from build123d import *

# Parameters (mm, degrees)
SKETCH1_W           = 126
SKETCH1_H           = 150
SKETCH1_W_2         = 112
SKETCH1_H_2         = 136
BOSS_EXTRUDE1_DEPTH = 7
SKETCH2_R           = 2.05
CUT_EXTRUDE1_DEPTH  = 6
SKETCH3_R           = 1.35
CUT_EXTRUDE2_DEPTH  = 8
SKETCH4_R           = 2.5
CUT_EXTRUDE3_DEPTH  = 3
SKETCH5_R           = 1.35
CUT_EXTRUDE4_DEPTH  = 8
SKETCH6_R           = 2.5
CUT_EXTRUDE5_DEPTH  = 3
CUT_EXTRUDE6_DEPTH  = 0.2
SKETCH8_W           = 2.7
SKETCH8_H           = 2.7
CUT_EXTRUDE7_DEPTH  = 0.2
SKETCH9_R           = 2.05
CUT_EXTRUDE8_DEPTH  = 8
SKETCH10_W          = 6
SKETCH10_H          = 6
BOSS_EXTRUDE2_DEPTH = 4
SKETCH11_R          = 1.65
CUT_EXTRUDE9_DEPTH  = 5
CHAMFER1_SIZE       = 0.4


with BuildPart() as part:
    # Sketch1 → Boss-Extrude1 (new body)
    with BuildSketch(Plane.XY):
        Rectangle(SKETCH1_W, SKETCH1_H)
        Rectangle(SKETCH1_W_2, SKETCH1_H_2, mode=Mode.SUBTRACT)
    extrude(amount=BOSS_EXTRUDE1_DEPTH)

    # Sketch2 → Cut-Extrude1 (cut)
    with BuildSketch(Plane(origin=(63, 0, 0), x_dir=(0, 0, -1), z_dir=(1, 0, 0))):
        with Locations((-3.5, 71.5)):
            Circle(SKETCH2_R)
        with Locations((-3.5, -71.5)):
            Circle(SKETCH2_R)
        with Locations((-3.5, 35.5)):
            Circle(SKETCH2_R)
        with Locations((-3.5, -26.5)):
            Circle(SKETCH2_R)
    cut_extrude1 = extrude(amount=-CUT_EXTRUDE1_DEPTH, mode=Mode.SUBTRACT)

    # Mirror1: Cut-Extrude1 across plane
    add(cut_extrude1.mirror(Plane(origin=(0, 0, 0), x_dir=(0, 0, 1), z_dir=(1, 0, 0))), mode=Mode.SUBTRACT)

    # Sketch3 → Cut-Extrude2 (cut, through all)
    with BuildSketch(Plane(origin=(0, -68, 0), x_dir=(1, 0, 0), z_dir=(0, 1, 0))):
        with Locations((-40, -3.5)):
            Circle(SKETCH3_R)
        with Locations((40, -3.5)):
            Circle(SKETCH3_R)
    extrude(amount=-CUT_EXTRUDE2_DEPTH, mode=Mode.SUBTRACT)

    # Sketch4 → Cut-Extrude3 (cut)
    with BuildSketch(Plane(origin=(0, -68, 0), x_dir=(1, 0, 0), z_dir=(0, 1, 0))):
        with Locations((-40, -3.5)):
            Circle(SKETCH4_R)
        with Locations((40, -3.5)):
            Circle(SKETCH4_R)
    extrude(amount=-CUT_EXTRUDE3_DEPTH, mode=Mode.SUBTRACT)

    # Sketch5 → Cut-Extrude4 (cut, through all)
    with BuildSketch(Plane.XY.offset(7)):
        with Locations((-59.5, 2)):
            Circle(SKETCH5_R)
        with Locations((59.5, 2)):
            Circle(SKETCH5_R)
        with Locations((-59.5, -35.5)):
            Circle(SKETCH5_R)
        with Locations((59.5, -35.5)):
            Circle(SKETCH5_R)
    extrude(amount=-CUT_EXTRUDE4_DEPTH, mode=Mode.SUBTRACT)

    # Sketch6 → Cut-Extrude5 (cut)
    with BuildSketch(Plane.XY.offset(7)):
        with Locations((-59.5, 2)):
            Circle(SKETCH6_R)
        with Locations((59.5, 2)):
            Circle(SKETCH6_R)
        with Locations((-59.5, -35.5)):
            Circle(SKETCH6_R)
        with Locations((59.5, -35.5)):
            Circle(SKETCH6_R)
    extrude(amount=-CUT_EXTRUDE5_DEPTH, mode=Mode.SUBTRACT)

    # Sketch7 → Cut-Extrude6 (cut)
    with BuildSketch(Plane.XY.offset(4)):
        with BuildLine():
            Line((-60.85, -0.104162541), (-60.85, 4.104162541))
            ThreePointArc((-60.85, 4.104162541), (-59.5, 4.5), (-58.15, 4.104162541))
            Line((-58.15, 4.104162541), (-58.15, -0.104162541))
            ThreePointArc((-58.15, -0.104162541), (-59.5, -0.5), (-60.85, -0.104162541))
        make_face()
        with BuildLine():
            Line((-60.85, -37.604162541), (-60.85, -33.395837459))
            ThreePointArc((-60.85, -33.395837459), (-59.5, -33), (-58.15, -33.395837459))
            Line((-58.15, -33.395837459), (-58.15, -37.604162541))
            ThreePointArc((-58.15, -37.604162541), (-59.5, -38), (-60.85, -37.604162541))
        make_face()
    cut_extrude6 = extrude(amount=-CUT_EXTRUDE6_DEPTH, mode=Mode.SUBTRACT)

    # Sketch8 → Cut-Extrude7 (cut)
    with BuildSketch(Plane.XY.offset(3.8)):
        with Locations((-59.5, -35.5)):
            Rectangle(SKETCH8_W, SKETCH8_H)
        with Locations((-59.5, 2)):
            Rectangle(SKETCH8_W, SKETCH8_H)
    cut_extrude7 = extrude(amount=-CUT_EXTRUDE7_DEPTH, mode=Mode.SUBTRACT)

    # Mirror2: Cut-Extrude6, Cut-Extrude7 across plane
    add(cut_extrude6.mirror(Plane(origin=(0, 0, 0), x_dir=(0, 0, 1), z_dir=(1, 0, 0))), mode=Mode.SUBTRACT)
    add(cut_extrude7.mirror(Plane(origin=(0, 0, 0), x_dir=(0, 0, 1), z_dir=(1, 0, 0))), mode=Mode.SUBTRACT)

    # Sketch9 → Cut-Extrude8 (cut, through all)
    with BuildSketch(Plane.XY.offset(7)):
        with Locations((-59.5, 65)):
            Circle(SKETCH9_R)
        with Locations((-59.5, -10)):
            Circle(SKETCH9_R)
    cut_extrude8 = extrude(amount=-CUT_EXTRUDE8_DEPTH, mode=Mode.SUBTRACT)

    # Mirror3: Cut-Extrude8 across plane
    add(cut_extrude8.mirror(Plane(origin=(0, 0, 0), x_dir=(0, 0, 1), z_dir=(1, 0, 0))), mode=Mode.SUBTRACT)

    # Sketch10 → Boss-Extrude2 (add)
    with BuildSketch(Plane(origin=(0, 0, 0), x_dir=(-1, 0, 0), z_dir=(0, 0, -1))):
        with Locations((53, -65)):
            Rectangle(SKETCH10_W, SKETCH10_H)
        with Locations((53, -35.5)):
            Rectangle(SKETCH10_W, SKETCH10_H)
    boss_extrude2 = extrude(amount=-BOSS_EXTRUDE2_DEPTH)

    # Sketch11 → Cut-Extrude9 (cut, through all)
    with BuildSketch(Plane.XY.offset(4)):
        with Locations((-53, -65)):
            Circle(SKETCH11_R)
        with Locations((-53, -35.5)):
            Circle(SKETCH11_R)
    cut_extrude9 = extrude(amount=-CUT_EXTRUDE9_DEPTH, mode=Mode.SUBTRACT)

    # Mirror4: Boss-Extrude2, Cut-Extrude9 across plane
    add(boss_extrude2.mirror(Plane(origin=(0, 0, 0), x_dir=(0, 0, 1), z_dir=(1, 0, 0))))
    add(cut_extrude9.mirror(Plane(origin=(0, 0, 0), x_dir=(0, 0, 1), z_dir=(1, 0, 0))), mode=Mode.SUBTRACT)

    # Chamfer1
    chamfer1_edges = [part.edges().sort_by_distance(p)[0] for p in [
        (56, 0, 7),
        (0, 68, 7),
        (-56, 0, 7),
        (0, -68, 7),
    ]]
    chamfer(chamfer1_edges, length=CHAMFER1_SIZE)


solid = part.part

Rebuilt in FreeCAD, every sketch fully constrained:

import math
import FreeCAD as App
import Part
import Sketcher
from FreeCAD import Vector


def edges_at(feature, points):
    """Names of the edges that pass closest to the given points."""
    edges = feature.Shape.Edges
    near = lambda p: min(range(len(edges)), key=lambda i: edges[i].distToShape(Part.Vertex(*p))[0])
    return sorted({f"Edge{near(p) + 1}" for p in points})


def add_polygon(sketch, points):
    """Adds a closed chain of lines whose ends are joined by coincident constraints."""
    first, n = sketch.GeometryCount, len(points)
    for a, b in zip(points, points[1:] + points[:1]):
        sketch.addGeometry(Part.LineSegment(App.Vector(*a, 0), App.Vector(*b, 0)), False)
    for i in range(n):
        sketch.addConstraint(Sketcher.Constraint("Coincident", first + i, 2, first + (i + 1) % n, 1))

doc = App.newDocument("Part")
body = doc.addObject("PartDesign::Body", "Body")

# Sketch on XY plane
sketch1 = body.newObject("Sketcher::SketchObject", "Sketch")
sketch1.AttachmentSupport = (doc.getObject("XY_Plane"), [""])
sketch1.MapMode = "FlatFace"
add_polygon(sketch1, [(-63, 75), (-63, -75), (63, -75), (63, 75)])  # lines 0-3
add_polygon(sketch1, [(56, -68), (-56, -68), (-56, 68), (56, 68)])  # lines 4-7
sketch1.addConstraint(Sketcher.Constraint("Vertical", 0))
sketch1.addConstraint(Sketcher.Constraint("Horizontal", 1))
sketch1.addConstraint(Sketcher.Constraint("Vertical", 2))
sketch1.addConstraint(Sketcher.Constraint("Horizontal", 3))
sketch1.addConstraint(Sketcher.Constraint("Horizontal", 4))
sketch1.addConstraint(Sketcher.Constraint("Vertical", 5))
sketch1.addConstraint(Sketcher.Constraint("Horizontal", 6))
sketch1.addConstraint(Sketcher.Constraint("Vertical", 7))
sketch1.addConstraint(Sketcher.Constraint("Symmetric", 0, 2, 2, 2, -1, 1))
sketch1.addConstraint(Sketcher.Constraint("Symmetric", 4, 2, 6, 2, -1, 1))
sketch1.addConstraint(Sketcher.Constraint("DistanceX", 1, 1, 1, 2, 126.0))
sketch1.addConstraint(Sketcher.Constraint("DistanceX", 4, 2, 4, 1, 112.0))
sketch1.addConstraint(Sketcher.Constraint("DistanceY", 0, 2, 0, 1, 150.0))
sketch1.addConstraint(Sketcher.Constraint("DistanceY", 5, 1, 5, 2, 136.0))
pad1 = body.newObject("PartDesign::Pad", "Pad")
pad1.Profile = sketch1
pad1.Length = 7

# Sketch on YZ plane
sketch2 = body.newObject("Sketcher::SketchObject", "Sketch001")
sketch2.AttachmentSupport = (doc.getObject("YZ_Plane"), [""])
sketch2.MapMode = "FlatFace"
sketch2.AttachmentOffset = App.Placement(Vector(0, 0, 63), App.Rotation())
sketch2.addGeometry(Part.Circle(Vector(71.5, 3.5, 0), Vector(0, 0, 1), 2.05), False)
sketch2.addGeometry(Part.Circle(Vector(-71.5, 3.5, 0), Vector(0, 0, 1), 2.05), False)
sketch2.addGeometry(Part.Circle(Vector(35.5, 3.5, 0), Vector(0, 0, 1), 2.05), False)
sketch2.addGeometry(Part.Circle(Vector(-26.5, 3.5, 0), Vector(0, 0, 1), 2.05), False)
sketch2.addConstraint(Sketcher.Constraint("Equal", 0, 1))
sketch2.addConstraint(Sketcher.Constraint("Equal", 1, 2))
sketch2.addConstraint(Sketcher.Constraint("Equal", 2, 3))
sketch2.addConstraint(Sketcher.Constraint("Symmetric", 0, 3, 1, 3, -2))
sketch2.addConstraint(Sketcher.Constraint("Horizontal", 1, 3, 2, 3))
sketch2.addConstraint(Sketcher.Constraint("Horizontal", 2, 3, 3, 3))
sketch2.addConstraint(Sketcher.Constraint("Diameter", 0, 4.1))
sketch2.addConstraint(Sketcher.Constraint("DistanceX", 1, 3, 0, 3, 143.0))
sketch2.addConstraint(Sketcher.Constraint("DistanceX", 2, 3, 0, 3, 36.0))
sketch2.addConstraint(Sketcher.Constraint("DistanceX", 1, 3, 3, 3, 45.0))
sketch2.addConstraint(Sketcher.Constraint("DistanceY", -1, 1, 0, 3, 3.5))
pocket1 = body.newObject("PartDesign::Pocket", "Pocket")
pocket1.Profile = sketch2
pocket1.Length = 6
doc.recompute()

mirrored = body.newObject("PartDesign::Mirrored", "Mirrored")
mirrored.Originals = [pocket1]
mirrored.MirrorPlane = (doc.getObject("YZ_Plane"), [""])
body.Tip = mirrored

# Sketch on XZ plane
sketch3 = body.newObject("Sketcher::SketchObject", "Sketch002")
sketch3.AttachmentSupport = (doc.getObject("XZ_Plane"), [""])
sketch3.MapMode = "FlatFace"
sketch3.AttachmentOffset = App.Placement(Vector(0, 0, 68), App.Rotation())
sketch3.addGeometry(Part.Circle(Vector(-40, 3.5, 0), Vector(0, 0, 1), 1.35), False)
sketch3.addGeometry(Part.Circle(Vector(40, 3.5, 0), Vector(0, 0, 1), 1.35), False)
sketch3.addConstraint(Sketcher.Constraint("Equal", 0, 1))
sketch3.addConstraint(Sketcher.Constraint("Symmetric", 0, 3, 1, 3, -2))
sketch3.addConstraint(Sketcher.Constraint("Diameter", 0, 2.7))
sketch3.addConstraint(Sketcher.Constraint("DistanceX", 0, 3, -1, 1, 40.0))
sketch3.addConstraint(Sketcher.Constraint("DistanceY", -1, 1, 0, 3, 3.5))
pocket2 = body.newObject("PartDesign::Pocket", "Pocket001")
pocket2.Profile = sketch3
pocket2.Type = "ThroughAll"
pocket2.Reversed = True

# Sketch on XZ plane
sketch4 = body.newObject("Sketcher::SketchObject", "Sketch003")
sketch4.AttachmentSupport = (doc.getObject("XZ_Plane"), [""])
sketch4.MapMode = "FlatFace"
sketch4.AttachmentOffset = App.Placement(Vector(0, 0, 68), App.Rotation())
sketch4.addGeometry(Part.Circle(Vector(-40, 3.5, 0), Vector(0, 0, 1), 2.5), False)
sketch4.addGeometry(Part.Circle(Vector(40, 3.5, 0), Vector(0, 0, 1), 2.5), False)
sketch4.addConstraint(Sketcher.Constraint("Equal", 0, 1))
sketch4.addConstraint(Sketcher.Constraint("Symmetric", 0, 3, 1, 3, -2))
sketch4.addConstraint(Sketcher.Constraint("Diameter", 0, 5.0))
sketch4.addConstraint(Sketcher.Constraint("DistanceX", 0, 3, -1, 1, 40.0))
sketch4.addConstraint(Sketcher.Constraint("DistanceY", -1, 1, 0, 3, 3.5))
pocket3 = body.newObject("PartDesign::Pocket", "Pocket002")
pocket3.Profile = sketch4
pocket3.Length = 3
pocket3.Reversed = True

# Sketch on XY plane
sketch5 = body.newObject("Sketcher::SketchObject", "Sketch004")
sketch5.AttachmentSupport = (doc.getObject("XY_Plane"), [""])
sketch5.MapMode = "FlatFace"
sketch5.AttachmentOffset = App.Placement(Vector(0, 0, 7), App.Rotation())
sketch5.addGeometry(Part.Circle(Vector(-59.5, 2, 0), Vector(0, 0, 1), 1.35), False)
sketch5.addGeometry(Part.Circle(Vector(59.5, 2, 0), Vector(0, 0, 1), 1.35), False)
sketch5.addGeometry(Part.Circle(Vector(-59.5, -35.5, 0), Vector(0, 0, 1), 1.35), False)
sketch5.addGeometry(Part.Circle(Vector(59.5, -35.5, 0), Vector(0, 0, 1), 1.35), False)
sketch5.addConstraint(Sketcher.Constraint("Equal", 0, 1))
sketch5.addConstraint(Sketcher.Constraint("Equal", 1, 2))
sketch5.addConstraint(Sketcher.Constraint("Equal", 2, 3))
sketch5.addConstraint(Sketcher.Constraint("Symmetric", 0, 3, 1, 3, -2))
sketch5.addConstraint(Sketcher.Constraint("Symmetric", 2, 3, 3, 3, -2))
sketch5.addConstraint(Sketcher.Constraint("Vertical", 0, 3, 2, 3))
sketch5.addConstraint(Sketcher.Constraint("Diameter", 0, 2.7))
sketch5.addConstraint(Sketcher.Constraint("DistanceY", -1, 1, 0, 3, 2.0))
sketch5.addConstraint(Sketcher.Constraint("DistanceX", 0, 3, 1, 3, 119.0))
sketch5.addConstraint(Sketcher.Constraint("DistanceY", 2, 3, -1, 1, 35.5))
pocket4 = body.newObject("PartDesign::Pocket", "Pocket003")
pocket4.Profile = sketch5
pocket4.Type = "ThroughAll"

# Sketch on XY plane
sketch6 = body.newObject("Sketcher::SketchObject", "Sketch005")
sketch6.AttachmentSupport = (doc.getObject("XY_Plane"), [""])
sketch6.MapMode = "FlatFace"
sketch6.AttachmentOffset = App.Placement(Vector(0, 0, 7), App.Rotation())
sketch6.addGeometry(Part.Circle(Vector(-59.5, 2, 0), Vector(0, 0, 1), 2.5), False)
sketch6.addGeometry(Part.Circle(Vector(59.5, 2, 0), Vector(0, 0, 1), 2.5), False)
sketch6.addGeometry(Part.Circle(Vector(-59.5, -35.5, 0), Vector(0, 0, 1), 2.5), False)
sketch6.addGeometry(Part.Circle(Vector(59.5, -35.5, 0), Vector(0, 0, 1), 2.5), False)
sketch6.addConstraint(Sketcher.Constraint("Equal", 0, 1))
sketch6.addConstraint(Sketcher.Constraint("Equal", 1, 2))
sketch6.addConstraint(Sketcher.Constraint("Equal", 2, 3))
sketch6.addConstraint(Sketcher.Constraint("Symmetric", 0, 3, 1, 3, -2))
sketch6.addConstraint(Sketcher.Constraint("Symmetric", 2, 3, 3, 3, -2))
sketch6.addConstraint(Sketcher.Constraint("Vertical", 0, 3, 2, 3))
sketch6.addConstraint(Sketcher.Constraint("Diameter", 0, 5.0))
sketch6.addConstraint(Sketcher.Constraint("DistanceY", -1, 1, 0, 3, 2.0))
sketch6.addConstraint(Sketcher.Constraint("DistanceX", 0, 3, 1, 3, 119.0))
sketch6.addConstraint(Sketcher.Constraint("DistanceY", 2, 3, -1, 1, 35.5))
pocket5 = body.newObject("PartDesign::Pocket", "Pocket004")
pocket5.Profile = sketch6
pocket5.Length = 3

# Sketch on XY plane
sketch7 = body.newObject("Sketcher::SketchObject", "Sketch006")
sketch7.AttachmentSupport = (doc.getObject("XY_Plane"), [""])
sketch7.MapMode = "FlatFace"
sketch7.AttachmentOffset = App.Placement(Vector(0, 0, 4), App.Rotation())
sketch7.addGeometry(Part.LineSegment(Vector(-60.85, 4.104163, 0), Vector(-60.85, -0.104163, 0)), False)
sketch7.addGeometry(Part.ArcOfCircle(Part.Circle(Vector(-59.5, 2, 0), Vector(0, 0, 1), 2.5), math.radians(-122.683639), math.radians(-57.316361)), False)
sketch7.addGeometry(Part.LineSegment(Vector(-58.15, -0.104163, 0), Vector(-58.15, 4.104163, 0)), False)
sketch7.addGeometry(Part.ArcOfCircle(Part.Circle(Vector(-59.5, 2, 0), Vector(0, 0, 1), 2.5), math.radians(57.316361), math.radians(122.683639)), False)
sketch7.addGeometry(Part.LineSegment(Vector(-60.85, -33.395837, 0), Vector(-60.85, -37.604163, 0)), False)
sketch7.addGeometry(Part.ArcOfCircle(Part.Circle(Vector(-59.5, -35.5, 0), Vector(0, 0, 1), 2.5), math.radians(-122.683639), math.radians(-57.316361)), False)
sketch7.addGeometry(Part.LineSegment(Vector(-58.15, -37.604163, 0), Vector(-58.15, -33.395837, 0)), False)
sketch7.addGeometry(Part.ArcOfCircle(Part.Circle(Vector(-59.5, -35.5, 0), Vector(0, 0, 1), 2.5), math.radians(57.316361), math.radians(122.683639)), False)
sketch7.addConstraint(Sketcher.Constraint("Coincident", 0, 2, 1, 1))
sketch7.addConstraint(Sketcher.Constraint("Coincident", 1, 2, 2, 1))
sketch7.addConstraint(Sketcher.Constraint("Coincident", 2, 2, 3, 1))
sketch7.addConstraint(Sketcher.Constraint("Coincident", 3, 2, 0, 1))
sketch7.addConstraint(Sketcher.Constraint("Coincident", 4, 2, 5, 1))
sketch7.addConstraint(Sketcher.Constraint("Coincident", 5, 2, 6, 1))
sketch7.addConstraint(Sketcher.Constraint("Coincident", 6, 2, 7, 1))
sketch7.addConstraint(Sketcher.Constraint("Coincident", 7, 2, 4, 1))
sketch7.addConstraint(Sketcher.Constraint("Vertical", 0))
sketch7.addConstraint(Sketcher.Constraint("Vertical", 2))
sketch7.addConstraint(Sketcher.Constraint("Vertical", 4))
sketch7.addConstraint(Sketcher.Constraint("Vertical", 6))
sketch7.addConstraint(Sketcher.Constraint("Coincident", 3, 3, 1, 3))
sketch7.addConstraint(Sketcher.Constraint("Coincident", 7, 3, 5, 3))
sketch7.addConstraint(Sketcher.Constraint("Equal", 1, 3))
sketch7.addConstraint(Sketcher.Constraint("Equal", 3, 5))
sketch7.addConstraint(Sketcher.Constraint("Equal", 5, 7))
sketch7.addConstraint(Sketcher.Constraint("Horizontal", 0, 2, 1, 2))
sketch7.addConstraint(Sketcher.Constraint("Horizontal", 4, 2, 5, 2))
sketch7.addConstraint(Sketcher.Constraint("Vertical", 3, 3, 5, 3))
sketch7.addConstraint(Sketcher.Constraint("Vertical", 3, 2, 4, 2))
sketch7.addConstraint(Sketcher.Constraint("Radius", 1, 2.5))
sketch7.addConstraint(Sketcher.Constraint("DistanceY", -1, 1, 1, 3, 2.0))
sketch7.addConstraint(Sketcher.Constraint("DistanceX", 1, 3, -1, 1, 59.5))
sketch7.addConstraint(Sketcher.Constraint("DistanceY", 5, 3, -1, 1, 35.5))
sketch7.addConstraint(Sketcher.Constraint("DistanceX", 0, 2, 1, 2, 2.7))
pocket6 = body.newObject("PartDesign::Pocket", "Pocket005")
pocket6.Profile = sketch7
pocket6.Length = 0.2

# Sketch on XY plane
sketch8 = body.newObject("Sketcher::SketchObject", "Sketch007")
sketch8.AttachmentSupport = (doc.getObject("XY_Plane"), [""])
sketch8.MapMode = "FlatFace"
sketch8.AttachmentOffset = App.Placement(Vector(0, 0, 3.8), App.Rotation())
add_polygon(sketch8, [(-60.85, -34.15), (-60.85, -36.85), (-58.15, -36.85), (-58.15, -34.15)])  # lines 0-3
add_polygon(sketch8, [(-60.85, 3.35), (-60.85, 0.65), (-58.15, 0.65), (-58.15, 3.35)])  # lines 4-7
sketch8.addConstraint(Sketcher.Constraint("Vertical", 0))
sketch8.addConstraint(Sketcher.Constraint("Horizontal", 1))
sketch8.addConstraint(Sketcher.Constraint("Vertical", 2))
sketch8.addConstraint(Sketcher.Constraint("Horizontal", 3))
sketch8.addConstraint(Sketcher.Constraint("Vertical", 4))
sketch8.addConstraint(Sketcher.Constraint("Horizontal", 5))
sketch8.addConstraint(Sketcher.Constraint("Vertical", 6))
sketch8.addConstraint(Sketcher.Constraint("Horizontal", 7))
sketch8.addConstraint(Sketcher.Constraint("Vertical", 3, 2, 4, 2))
sketch8.addConstraint(Sketcher.Constraint("Vertical", 2, 2, 5, 2))
sketch8.addConstraint(Sketcher.Constraint("Equal", 7, 0))
sketch8.addConstraint(Sketcher.Constraint("Equal", 2, 4))
sketch8.addConstraint(Sketcher.Constraint("DistanceX", 1, 1, 1, 2, 2.7))
sketch8.addConstraint(Sketcher.Constraint("DistanceY", 3, 2, 4, 2, 34.8))
sketch8.addConstraint(Sketcher.Constraint("DistanceX", 0, 2, -1, 1, 60.85))
sketch8.addConstraint(Sketcher.Constraint("DistanceY", 0, 2, -1, 1, 36.85))
pocket7 = body.newObject("PartDesign::Pocket", "Pocket006")
pocket7.Profile = sketch8
pocket7.Length = 0.2
doc.recompute()

mirrored2 = body.newObject("PartDesign::Mirrored", "Mirrored001")
mirrored2.Originals = [pocket6, pocket7]
mirrored2.MirrorPlane = (doc.getObject("YZ_Plane"), [""])
body.Tip = mirrored2

# Sketch on XY plane
sketch9 = body.newObject("Sketcher::SketchObject", "Sketch008")
sketch9.AttachmentSupport = (doc.getObject("XY_Plane"), [""])
sketch9.MapMode = "FlatFace"
sketch9.AttachmentOffset = App.Placement(Vector(0, 0, 7), App.Rotation())
sketch9.addGeometry(Part.Circle(Vector(-59.5, 65, 0), Vector(0, 0, 1), 2.05), False)
sketch9.addGeometry(Part.Circle(Vector(-59.5, -10, 0), Vector(0, 0, 1), 2.05), False)
sketch9.addConstraint(Sketcher.Constraint("Equal", 0, 1))
sketch9.addConstraint(Sketcher.Constraint("Vertical", 0, 3, 1, 3))
sketch9.addConstraint(Sketcher.Constraint("Diameter", 0, 4.1))
sketch9.addConstraint(Sketcher.Constraint("DistanceY", -1, 1, 0, 3, 65.0))
sketch9.addConstraint(Sketcher.Constraint("DistanceY", 1, 3, -1, 1, 10.0))
sketch9.addConstraint(Sketcher.Constraint("DistanceX", 0, 3, -1, 1, 59.5))
pocket8 = body.newObject("PartDesign::Pocket", "Pocket007")
pocket8.Profile = sketch9
pocket8.Type = "ThroughAll"
doc.recompute()

mirrored3 = body.newObject("PartDesign::Mirrored", "Mirrored002")
mirrored3.Originals = [pocket8]
mirrored3.MirrorPlane = (doc.getObject("YZ_Plane"), [""])
body.Tip = mirrored3

# Sketch on XY plane
sketch10 = body.newObject("Sketcher::SketchObject", "Sketch009")
sketch10.AttachmentSupport = (doc.getObject("XY_Plane"), [""])
sketch10.MapMode = "FlatFace"
add_polygon(sketch10, [(-50, -62), (-50, -68), (-56, -68), (-56, -62)])  # lines 0-3
add_polygon(sketch10, [(-50, -32.5), (-50, -38.5), (-56, -38.5), (-56, -32.5)])  # lines 4-7
sketch10.addConstraint(Sketcher.Constraint("Vertical", 0))
sketch10.addConstraint(Sketcher.Constraint("Horizontal", 1))
sketch10.addConstraint(Sketcher.Constraint("Vertical", 2))
sketch10.addConstraint(Sketcher.Constraint("Horizontal", 3))
sketch10.addConstraint(Sketcher.Constraint("Vertical", 4))
sketch10.addConstraint(Sketcher.Constraint("Horizontal", 5))
sketch10.addConstraint(Sketcher.Constraint("Vertical", 6))
sketch10.addConstraint(Sketcher.Constraint("Horizontal", 7))
sketch10.addConstraint(Sketcher.Constraint("Vertical", 3, 2, 4, 2))
sketch10.addConstraint(Sketcher.Constraint("Vertical", 2, 2, 5, 2))
sketch10.addConstraint(Sketcher.Constraint("Equal", 7, 0))
sketch10.addConstraint(Sketcher.Constraint("Equal", 2, 4))
sketch10.addConstraint(Sketcher.Constraint("DistanceX", 1, 2, 1, 1, 6.0))
sketch10.addConstraint(Sketcher.Constraint("DistanceX", 0, 2, -1, 1, 50.0))
sketch10.addConstraint(Sketcher.Constraint("DistanceY", 0, 2, -1, 1, 68.0))
sketch10.addConstraint(Sketcher.Constraint("DistanceY", 4, 2, -1, 1, 38.5))
pad2 = body.newObject("PartDesign::Pad", "Pad001")
pad2.Profile = sketch10
pad2.Length = 4

# Sketch on XY plane
sketch11 = body.newObject("Sketcher::SketchObject", "Sketch010")
sketch11.AttachmentSupport = (doc.getObject("XY_Plane"), [""])
sketch11.MapMode = "FlatFace"
sketch11.AttachmentOffset = App.Placement(Vector(0, 0, 4), App.Rotation())
sketch11.addGeometry(Part.Circle(Vector(-53, -65, 0), Vector(0, 0, 1), 1.65), False)
sketch11.addGeometry(Part.Circle(Vector(-53, -35.5, 0), Vector(0, 0, 1), 1.65), False)
sketch11.addConstraint(Sketcher.Constraint("Equal", 0, 1))
sketch11.addConstraint(Sketcher.Constraint("Vertical", 0, 3, 1, 3))
sketch11.addConstraint(Sketcher.Constraint("Diameter", 0, 3.3))
sketch11.addConstraint(Sketcher.Constraint("DistanceX", 0, 3, -1, 1, 53.0))
sketch11.addConstraint(Sketcher.Constraint("DistanceY", 0, 3, -1, 1, 65.0))
sketch11.addConstraint(Sketcher.Constraint("DistanceY", 1, 3, -1, 1, 35.5))
pocket9 = body.newObject("PartDesign::Pocket", "Pocket008")
pocket9.Profile = sketch11
pocket9.Type = "ThroughAll"
doc.recompute()

mirrored4 = body.newObject("PartDesign::Mirrored", "Mirrored003")
mirrored4.Originals = [pad2, pocket9]
mirrored4.MirrorPlane = (doc.getObject("YZ_Plane"), [""])
body.Tip = mirrored4
doc.recompute()

chamfer = body.newObject("PartDesign::Chamfer", "Chamfer")
chamfer.Base = (mirrored4, edges_at(mirrored4, [
    (56, 0, 7),
    (0, 68, 7),
    (-56, 0, 7),
    (0, -68, 7),
]))
chamfer.Size = 0.4

doc.recompute()
